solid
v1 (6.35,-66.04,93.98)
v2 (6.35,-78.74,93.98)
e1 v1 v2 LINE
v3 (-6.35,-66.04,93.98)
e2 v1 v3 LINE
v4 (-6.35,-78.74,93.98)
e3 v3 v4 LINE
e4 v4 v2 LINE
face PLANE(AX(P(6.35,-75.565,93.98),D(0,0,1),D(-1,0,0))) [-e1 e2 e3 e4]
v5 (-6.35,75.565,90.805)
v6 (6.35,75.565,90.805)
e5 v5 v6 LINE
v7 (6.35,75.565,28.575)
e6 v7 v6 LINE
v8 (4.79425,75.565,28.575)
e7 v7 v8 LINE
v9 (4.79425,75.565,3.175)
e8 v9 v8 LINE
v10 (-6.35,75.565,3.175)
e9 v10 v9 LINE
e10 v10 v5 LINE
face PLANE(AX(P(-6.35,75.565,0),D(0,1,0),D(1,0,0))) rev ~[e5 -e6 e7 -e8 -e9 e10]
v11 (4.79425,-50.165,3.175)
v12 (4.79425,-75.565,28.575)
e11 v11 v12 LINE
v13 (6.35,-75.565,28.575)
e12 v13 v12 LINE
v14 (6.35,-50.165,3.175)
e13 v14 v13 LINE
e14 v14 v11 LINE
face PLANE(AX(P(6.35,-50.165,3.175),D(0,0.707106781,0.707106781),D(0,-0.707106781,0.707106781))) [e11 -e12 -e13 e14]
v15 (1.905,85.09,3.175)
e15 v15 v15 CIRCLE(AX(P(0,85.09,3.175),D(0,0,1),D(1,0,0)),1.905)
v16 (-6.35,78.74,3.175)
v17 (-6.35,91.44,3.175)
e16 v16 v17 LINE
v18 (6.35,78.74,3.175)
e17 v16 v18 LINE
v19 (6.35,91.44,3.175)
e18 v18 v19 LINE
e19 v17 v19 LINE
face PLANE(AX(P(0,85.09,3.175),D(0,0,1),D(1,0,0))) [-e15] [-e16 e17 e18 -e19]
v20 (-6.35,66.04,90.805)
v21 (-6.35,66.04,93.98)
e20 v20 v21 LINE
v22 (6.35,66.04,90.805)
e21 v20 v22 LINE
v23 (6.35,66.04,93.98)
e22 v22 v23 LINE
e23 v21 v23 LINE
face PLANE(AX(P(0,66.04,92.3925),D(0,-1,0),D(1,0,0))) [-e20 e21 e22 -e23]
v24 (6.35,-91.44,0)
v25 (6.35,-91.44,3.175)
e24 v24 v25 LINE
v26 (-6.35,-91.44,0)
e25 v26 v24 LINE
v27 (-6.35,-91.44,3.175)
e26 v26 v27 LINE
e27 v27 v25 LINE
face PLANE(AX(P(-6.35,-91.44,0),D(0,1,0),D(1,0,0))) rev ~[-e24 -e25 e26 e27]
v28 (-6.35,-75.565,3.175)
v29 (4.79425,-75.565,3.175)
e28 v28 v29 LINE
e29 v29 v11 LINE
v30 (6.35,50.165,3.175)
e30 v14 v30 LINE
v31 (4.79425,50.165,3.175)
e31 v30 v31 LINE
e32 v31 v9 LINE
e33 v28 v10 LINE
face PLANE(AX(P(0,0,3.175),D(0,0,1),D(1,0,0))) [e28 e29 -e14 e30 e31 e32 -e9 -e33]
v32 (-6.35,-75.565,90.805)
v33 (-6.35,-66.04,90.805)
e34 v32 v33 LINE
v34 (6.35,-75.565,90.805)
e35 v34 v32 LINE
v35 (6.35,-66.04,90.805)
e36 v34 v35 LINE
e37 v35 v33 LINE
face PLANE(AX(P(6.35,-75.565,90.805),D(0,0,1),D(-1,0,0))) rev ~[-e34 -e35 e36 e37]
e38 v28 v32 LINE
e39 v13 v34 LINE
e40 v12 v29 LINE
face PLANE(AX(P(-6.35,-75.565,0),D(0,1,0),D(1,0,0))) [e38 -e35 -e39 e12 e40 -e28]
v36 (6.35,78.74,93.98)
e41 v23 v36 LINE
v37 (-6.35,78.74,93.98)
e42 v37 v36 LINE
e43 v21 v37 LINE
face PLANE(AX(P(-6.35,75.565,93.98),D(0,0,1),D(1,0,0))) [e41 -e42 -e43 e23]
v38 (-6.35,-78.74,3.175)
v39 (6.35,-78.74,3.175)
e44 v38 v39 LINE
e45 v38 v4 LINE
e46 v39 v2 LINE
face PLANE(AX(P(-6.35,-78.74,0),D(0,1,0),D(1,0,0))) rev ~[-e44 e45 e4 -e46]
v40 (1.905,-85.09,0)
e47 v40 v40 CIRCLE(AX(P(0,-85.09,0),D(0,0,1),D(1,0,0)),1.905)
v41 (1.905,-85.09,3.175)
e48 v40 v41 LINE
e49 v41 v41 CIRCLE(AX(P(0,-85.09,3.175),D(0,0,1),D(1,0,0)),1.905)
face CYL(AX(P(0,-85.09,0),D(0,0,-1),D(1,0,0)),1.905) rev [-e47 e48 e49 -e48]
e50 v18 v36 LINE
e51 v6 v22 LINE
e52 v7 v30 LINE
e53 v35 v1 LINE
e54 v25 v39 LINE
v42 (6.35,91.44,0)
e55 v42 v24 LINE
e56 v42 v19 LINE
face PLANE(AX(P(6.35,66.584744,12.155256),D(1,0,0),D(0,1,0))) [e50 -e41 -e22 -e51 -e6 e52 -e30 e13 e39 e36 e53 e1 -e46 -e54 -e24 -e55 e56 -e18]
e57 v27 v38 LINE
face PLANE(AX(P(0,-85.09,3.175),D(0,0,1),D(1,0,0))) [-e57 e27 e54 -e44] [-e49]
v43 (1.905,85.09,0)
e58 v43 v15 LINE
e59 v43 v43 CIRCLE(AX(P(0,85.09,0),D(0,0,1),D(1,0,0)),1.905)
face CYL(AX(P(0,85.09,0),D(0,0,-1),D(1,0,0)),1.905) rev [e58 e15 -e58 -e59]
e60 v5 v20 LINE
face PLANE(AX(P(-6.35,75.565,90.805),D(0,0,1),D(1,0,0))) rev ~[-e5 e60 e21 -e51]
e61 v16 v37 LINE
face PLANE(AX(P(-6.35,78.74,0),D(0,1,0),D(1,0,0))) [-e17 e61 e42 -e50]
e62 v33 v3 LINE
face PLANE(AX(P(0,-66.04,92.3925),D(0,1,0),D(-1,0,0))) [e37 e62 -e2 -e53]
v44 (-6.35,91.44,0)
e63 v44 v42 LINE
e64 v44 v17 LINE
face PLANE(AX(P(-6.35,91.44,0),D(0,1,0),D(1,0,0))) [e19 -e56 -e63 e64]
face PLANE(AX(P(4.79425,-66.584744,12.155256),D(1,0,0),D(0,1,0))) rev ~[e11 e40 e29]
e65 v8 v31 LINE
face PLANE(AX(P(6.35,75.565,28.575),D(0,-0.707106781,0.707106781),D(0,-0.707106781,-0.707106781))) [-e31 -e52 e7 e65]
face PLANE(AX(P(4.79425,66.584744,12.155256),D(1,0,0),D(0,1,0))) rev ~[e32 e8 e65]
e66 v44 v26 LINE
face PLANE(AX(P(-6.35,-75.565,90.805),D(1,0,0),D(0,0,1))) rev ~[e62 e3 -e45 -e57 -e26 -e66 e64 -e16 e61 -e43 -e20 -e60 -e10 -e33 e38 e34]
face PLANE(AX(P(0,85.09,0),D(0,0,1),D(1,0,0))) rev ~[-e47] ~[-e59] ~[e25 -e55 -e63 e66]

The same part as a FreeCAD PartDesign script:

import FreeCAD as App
import Part
import Sketcher
from FreeCAD import Vector
Q = App.Units.Quantity

doc = App.newDocument("Part")
body = doc.addObject("PartDesign::Body", "Body")

sketch1 = body.newObject("Sketcher::SketchObject", "Sketch")
sketch1.AttachmentSupport = (doc.getObject("XY_Plane"), [""])
sketch1.MapMode = "FlatFace"
sketch1.addGeometry(Part.LineSegment(Vector(-6, 76, 0), Vector(-6, -76, 0)), False)
sketch1.addGeometry(Part.LineSegment(Vector(-6, -76, 0), Vector(6, -76, 0)), False)
sketch1.addGeometry(Part.LineSegment(Vector(6, -76, 0), Vector(6, 76, 0)), False)
sketch1.addGeometry(Part.LineSegment(Vector(6, 76, 0), Vector(-6, 76, 0)), False)
sketch1.addConstraint(Sketcher.Constraint("Coincident", 0, 2, 1, 1))
sketch1.addConstraint(Sketcher.Constraint("Coincident", 1, 2, 2, 1))
sketch1.addConstraint(Sketcher.Constraint("Coincident", 2, 2, 3, 1))
sketch1.addConstraint(Sketcher.Constraint("Coincident", 3, 2, 0, 1))
sketch1.addConstraint(Sketcher.Constraint("Vertical", 0))
sketch1.addConstraint(Sketcher.Constraint("Horizontal", 1))
sketch1.addConstraint(Sketcher.Constraint("Vertical", 2))
sketch1.addConstraint(Sketcher.Constraint("Horizontal", 3))
sketch1.addConstraint(Sketcher.Constraint("Symmetric", 0, 2, 2, 2, -1, 1))
sketch1.addConstraint(Sketcher.Constraint("DistanceX", 1, 1, 1, 2, Q("0.5 in")))
sketch1.addConstraint(Sketcher.Constraint("DistanceY", 0, 2, 0, 1, Q("5.95 in")))
pad1 = body.newObject("PartDesign::Pad", "Pad")
pad1.Profile = sketch1
pad1.Length = Q("0.125 in")

sketch2 = body.newObject("Sketcher::SketchObject", "Sketch001")
sketch2.AttachmentSupport = (doc.getObject("XY_Plane"), [""])
sketch2.MapMode = "FlatFace"
sketch2.addGeometry(Part.LineSegment(Vector(-6.3, 78.7, 0), Vector(-6.3, 75.6, 0)), False)
sketch2.addGeometry(Part.LineSegment(Vector(-6.3, 75.6, 0), Vector(6.3, 75.6, 0)), False)
sketch2.addGeometry(Part.LineSegment(Vector(6.3, 75.6, 0), Vector(6.3, 78.7, 0)), False)
sketch2.addGeometry(Part.LineSegment(Vector(6.3, 78.7, 0), Vector(-6.3, 78.7, 0)), False)
sketch2.addGeometry(Part.LineSegment(Vector(-6.3, -75.6, 0), Vector(-6.3, -78.7, 0)), False)
sketch2.addGeometry(Part.LineSegment(Vector(-6.3, -78.7, 0), Vector(6.3, -78.7, 0)), False)
sketch2.addGeometry(Part.LineSegment(Vector(6.3, -78.7, 0), Vector(6.3, -75.6, 0)), False)
sketch2.addGeometry(Part.LineSegment(Vector(6.3, -75.6, 0), Vector(-6.3, -75.6, 0)), False)
sketch2.addConstraint(Sketcher.Constraint("Coincident", 0, 2, 1, 1))
sketch2.addConstraint(Sketcher.Constraint("Coincident", 1, 2, 2, 1))
sketch2.addConstraint(Sketcher.Constraint("Coincident", 2, 2, 3, 1))
sketch2.addConstraint(Sketcher.Constraint("Coincident", 3, 2, 0, 1))
sketch2.addConstraint(Sketcher.Constraint("Coincident", 4, 2, 5, 1))
sketch2.addConstraint(Sketcher.Constraint("Coincident", 5, 2, 6, 1))
sketch2.addConstraint(Sketcher.Constraint("Coincident", 6, 2, 7, 1))
sketch2.addConstraint(Sketcher.Constraint("Coincident", 7, 2, 4, 1))
sketch2.addConstraint(Sketcher.Constraint("Vertical", 0))
sketch2.addConstraint(Sketcher.Constraint("Horizontal", 1))
sketch2.addConstraint(Sketcher.Constraint("Vertical", 2))
sketch2.addConstraint(Sketcher.Constraint("Horizontal", 3))
sketch2.addConstraint(Sketcher.Constraint("Vertical", 4))
sketch2.addConstraint(Sketcher.Constraint("Horizontal", 5))
sketch2.addConstraint(Sketcher.Constraint("Vertical", 6))
sketch2.addConstraint(Sketcher.Constraint("Horizontal", 7))
sketch2.addConstraint(Sketcher.Constraint("Symmetric", 2, 2, 4, 2, -1, 1))
sketch2.addConstraint(Sketcher.Constraint("Symmetric", 0, 2, 6, 2, -1, 1))
sketch2.addConstraint(Sketcher.Constraint("Vertical", 3, 2, 4, 2))
sketch2.addConstraint(Sketcher.Constraint("DistanceX", 1, 1, 1, 2, Q("0.5 in")))
sketch2.addConstraint(Sketcher.Constraint("DistanceY", -1, 1, 2, 2, Q("3.1 in")))
sketch2.addConstraint(Sketcher.Constraint("DistanceY", 0, 2, 0, 1, Q("0.125 in")))
pad2 = body.newObject("PartDesign::Pad", "Pad001")
pad2.Profile = sketch2
pad2.Length = Q("3.7 in")

sketch3 = body.newObject("Sketcher::SketchObject", "Sketch002")
sketch3.AttachmentSupport = (doc.getObject("XY_Plane"), [""])
sketch3.MapMode = "FlatFace"
sketch3.addGeometry(Part.LineSegment(Vector(-6.3, 91.4, 0), Vector(-6.3, 78.7, 0)), False)
sketch3.addGeometry(Part.LineSegment(Vector(-6.3, 78.7, 0), Vector(6.3, 78.7, 0)), False)
sketch3.addGeometry(Part.LineSegment(Vector(6.3, 78.7, 0), Vector(6.3, 91.4, 0)), False)
sketch3.addGeometry(Part.LineSegment(Vector(6.3, 91.4, 0), Vector(-6.3, 91.4, 0)), False)
sketch3.addGeometry(Part.Circle(Vector(0, 85.1, 0), Vector(0, 0, 1), 1.9), False)
sketch3.addGeometry(Part.LineSegment(Vector(-6.3, -78.7, 0), Vector(-6.3, -91.4, 0)), False)
sketch3.addGeometry(Part.LineSegment(Vector(-6.3, -91.4, 0), Vector(6.3, -91.4, 0)), False)
sketch3.addGeometry(Part.LineSegment(Vector(6.3, -91.4, 0), Vector(6.3, -78.7, 0)), False)
sketch3.addGeometry(Part.LineSegment(Vector(6.3, -78.7, 0), Vector(-6.3, -78.7, 0)), False)
sketch3.addGeometry(Part.Circle(Vector(0, -85.1, 0), Vector(0, 0, 1), 1.9), False)
sketch3.addConstraint(Sketcher.Constraint("Coincident", 0, 2, 1, 1))
sketch3.addConstraint(Sketcher.Constraint("Coincident", 1, 2, 2, 1))
sketch3.addConstraint(Sketcher.Constraint("Coincident", 2, 2, 3, 1))
sketch3.addConstraint(Sketcher.Constraint("Coincident", 3, 2, 0, 1))
sketch3.addConstraint(Sketcher.Constraint("Coincident", 5, 2, 6, 1))
sketch3.addConstraint(Sketcher.Constraint("Coincident", 6, 2, 7, 1))
sketch3.addConstraint(Sketcher.Constraint("Coincident", 7, 2, 8, 1))
sketch3.addConstraint(Sketcher.Constraint("Coincident", 8, 2, 5, 1))
sketch3.addConstraint(Sketcher.Constraint("Vertical", 0))
sketch3.addConstraint(Sketcher.Constraint("Horizontal", 1))
sketch3.addConstraint(Sketcher.Constraint("Vertical", 2))
sketch3.addConstraint(Sketcher.Constraint("Horizontal", 3))
sketch3.addConstraint(Sketcher.Constraint("Vertical", 5))
sketch3.addConstraint(Sketcher.Constraint("Horizontal", 6))
sketch3.addConstraint(Sketcher.Constraint("Vertical", 7))
sketch3.addConstraint(Sketcher.Constraint("Horizontal", 8))
sketch3.addConstraint(Sketcher.Constraint("Equal", 4, 9))
sketch3.addConstraint(Sketcher.Constraint("Symmetric", 4, 3, 9, 3, -1, 1))
sketch3.addConstraint(Sketcher.Constraint("Symmetric", 2, 2, 5, 2, -1, 1))
sketch3.addConstraint(Sketcher.Constraint("Symmetric", 0, 2, 7, 2, -1, 1))
sketch3.addConstraint(Sketcher.Constraint("PointOnObject", 4, 3, -2))
sketch3.addConstraint(Sketcher.Constraint("Vertical", 3, 2, 5, 2))
sketch3.addConstraint(Sketcher.Constraint("Equal", 8, 0))
sketch3.addConstraint(Sketcher.Constraint("Diameter", 4, Q("0.15 in")))
sketch3.addConstraint(Sketcher.Constraint("DistanceX", 1, 1, 1, 2, Q("0.5 in")))
sketch3.addConstraint(Sketcher.Constraint("DistanceY", -1, 1, 0, 2, Q("3.1 in")))
sketch3.addConstraint(Sketcher.Constraint("DistanceY", 9, 3, 4, 3, Q("6.7 in")))
pad3 = body.newObject("PartDesign::Pad", "Pad002")
pad3.Profile = sketch3
pad3.Length = Q("0.125 in")

sketch4 = body.newObject("Sketcher::SketchObject", "Sketch003")
sketch4.AttachmentSupport = (doc.getObject("XZ_Plane"), [""])
sketch4.MapMode = "FlatFace"
sketch4.AttachmentOffset = App.Placement(Vector(0, 0, -2.975 * 25.4), App.Rotation())
sketch4.addGeometry(Part.LineSegment(Vector(-6.3, 94, 0), Vector(-6.3, 90.8, 0)), False)
sketch4.addGeometry(Part.LineSegment(Vector(-6.3, 90.8, 0), Vector(6.3, 90.8, 0)), False)
sketch4.addGeometry(Part.LineSegment(Vector(6.3, 90.8, 0), Vector(6.3, 94, 0)), False)
sketch4.addGeometry(Part.LineSegment(Vector(6.3, 94, 0), Vector(-6.3, 94, 0)), False)
sketch4.addConstraint(Sketcher.Constraint("Coincident", 0, 2, 1, 1))
sketch4.addConstraint(Sketcher.Constraint("Coincident", 1, 2, 2, 1))
sketch4.addConstraint(Sketcher.Constraint("Coincident", 2, 2, 3, 1))
sketch4.addConstraint(Sketcher.Constraint("Coincident", 3, 2, 0, 1))
sketch4.addConstraint(Sketcher.Constraint("Vertical", 0))
sketch4.addConstraint(Sketcher.Constraint("Horizontal", 1))
sketch4.addConstraint(Sketcher.Constraint("Vertical", 2))
sketch4.addConstraint(Sketcher.Constraint("Horizontal", 3))
sketch4.addConstraint(Sketcher.Constraint("DistanceX", 1, 1, 1, 2, Q("0.5 in")))
sketch4.addConstraint(Sketcher.Constraint("DistanceY", -1, 1, 2, 2, Q("3.7 in")))
sketch4.addConstraint(Sketcher.Constraint("DistanceY", 0, 2, 0, 1, Q("0.125 in")))
sketch4.addConstraint(Sketcher.Constraint("DistanceX", 0, 2, -1, 1, Q("0.25 in")))
pad4 = body.newObject("PartDesign::Pad", "Pad003")
pad4.Profile = sketch4
pad4.Length = Q("0.375 in")

sketch5 = body.newObject("Sketcher::SketchObject", "Sketch004")
sketch5.AttachmentSupport = (doc.getObject("XZ_Plane"), [""])
sketch5.MapMode = "FlatFace"
sketch5.AttachmentOffset = App.Placement(Vector(0, 0, 2.975 * 25.4), App.Rotation())
sketch5.addGeometry(Part.LineSegment(Vector(6.3, 94, 0), Vector(6.3, 90.8, 0)), False)
sketch5.addGeometry(Part.LineSegment(Vector(6.3, 90.8, 0), Vector(-6.3, 90.8, 0)), False)
sketch5.addGeometry(Part.LineSegment(Vector(-6.3, 90.8, 0), Vector(-6.3, 94, 0)), False)
sketch5.addGeometry(Part.LineSegment(Vector(-6.3, 94, 0), Vector(6.3, 94, 0)), False)
sketch5.addConstraint(Sketcher.Constraint("Coincident", 0, 2, 1, 1))
sketch5.addConstraint(Sketcher.Constraint("Coincident", 1, 2, 2, 1))
sketch5.addConstraint(Sketcher.Constraint("Coincident", 2, 2, 3, 1))
sketch5.addConstraint(Sketcher.Constraint("Coincident", 3, 2, 0, 1))
sketch5.addConstraint(Sketcher.Constraint("Vertical", 0))
sketch5.addConstraint(Sketcher.Constraint("Horizontal", 1))
sketch5.addConstraint(Sketcher.Constraint("Vertical", 2))
sketch5.addConstraint(Sketcher.Constraint("Horizontal", 3))
sketch5.addConstraint(Sketcher.Constraint("DistanceX", 1, 2, 1, 1, Q("0.5 in")))
sketch5.addConstraint(Sketcher.Constraint("DistanceY", -1, 1, 2, 2, Q("3.7 in")))
sketch5.addConstraint(Sketcher.Constraint("DistanceY", 0, 2, 0, 1, Q("0.125 in")))
sketch5.addConstraint(Sketcher.Constraint("DistanceX", -1, 1, 0, 2, Q("0.25 in")))
pad5 = body.newObject("PartDesign::Pad", "Pad004")
pad5.Profile = sketch5
pad5.Length = Q("0.375 in")
pad5.Reversed = True

sketch6 = body.newObject("Sketcher::SketchObject", "Sketch005")
sketch6.AttachmentSupport = (doc.getObject("YZ_Plane"), [""])
sketch6.MapMode = "FlatFace"
sketch6.AttachmentOffset = App.Placement(Vector(0, 0, 0.25 * 25.4), App.Rotation())
sketch6.addGeometry(Part.LineSegment(Vector(76, 29, 0), Vector(50, 3, 0)), False)
sketch6.addGeometry(Part.LineSegment(Vector(50, 3, 0), Vector(76, 3, 0)), False)
sketch6.addGeometry(Part.LineSegment(Vector(76, 3, 0), Vector(76, 29, 0)), False)
sketch6.addGeometry(Part.LineSegment(Vector(-76, 3, 0), Vector(-50, 3, 0)), False)
sketch6.addGeometry(Part.LineSegment(Vector(-50, 3, 0), Vector(-76, 29, 0)), False)
sketch6.addGeometry(Part.LineSegment(Vector(-76, 29, 0), Vector(-76, 3, 0)), False)
sketch6.addConstraint(Sketcher.Constraint("Coincident", 0, 2, 1, 1))
sketch6.addConstraint(Sketcher.Constraint("Coincident", 1, 2, 2, 1))
sketch6.addConstraint(Sketcher.Constraint("Coincident", 2, 2, 0, 1))
sketch6.addConstraint(Sketcher.Constraint("Coincident", 3, 2, 4, 1))
sketch6.addConstraint(Sketcher.Constraint("Coincident", 4, 2, 5, 1))
sketch6.addConstraint(Sketcher.Constraint("Coincident", 5, 2, 3, 1))
sketch6.addConstraint(Sketcher.Constraint("Horizontal", 1))
sketch6.addConstraint(Sketcher.Constraint("Vertical", 2))
sketch6.addConstraint(Sketcher.Constraint("Horizontal", 3))
sketch6.addConstraint(Sketcher.Constraint("Vertical", 5))
sketch6.addConstraint(Sketcher.Constraint("Symmetric", 0, 2, 3, 2, -2))
sketch6.addConstraint(Sketcher.Constraint("Symmetric", 2, 2, 4, 2, -2))
sketch6.addConstraint(Sketcher.Constraint("Perpendicular", 0, 4))
sketch6.addConstraint(Sketcher.Constraint("DistanceX", 1, 1, 1, 2, Q("1 in")))
sketch6.addConstraint(Sketcher.Constraint("DistanceX", 3, 2, 0, 2, Q("3.95 in")))
sketch6.addConstraint(Sketcher.Constraint("DistanceY", -1, 1, 0, 2, Q("0.125 in")))
pad6 = body.newObject("PartDesign::Pad", "Pad005")
pad6.Profile = sketch6
pad6.Length = 1.55575
pad6.Reversed = True

doc.recompute()
